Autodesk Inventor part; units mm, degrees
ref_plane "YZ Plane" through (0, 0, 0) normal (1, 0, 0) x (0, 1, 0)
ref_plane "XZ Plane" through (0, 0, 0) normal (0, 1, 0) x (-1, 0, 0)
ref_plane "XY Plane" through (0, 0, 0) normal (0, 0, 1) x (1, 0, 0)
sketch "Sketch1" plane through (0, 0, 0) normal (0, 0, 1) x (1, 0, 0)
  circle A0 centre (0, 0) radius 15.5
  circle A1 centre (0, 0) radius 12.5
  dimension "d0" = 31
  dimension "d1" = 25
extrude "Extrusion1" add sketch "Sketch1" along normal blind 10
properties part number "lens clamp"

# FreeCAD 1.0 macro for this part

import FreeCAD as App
import Part
import Sketcher

doc = App.newDocument("Part")
body = doc.addObject("PartDesign::Body", "Body")

sketch1 = body.newObject("Sketcher::SketchObject", "Sketch")
sketch1.AttachmentSupport = (doc.getObject("XY_Plane"), [""])
sketch1.MapMode = "FlatFace"
sketch1.addGeometry([
    Part.Circle(App.Vector(0, 0, 0), App.Vector(0, 0, 1), 16),
    Part.Circle(App.Vector(0, 0, 0), App.Vector(0, 0, 1), 12),
], False)
sketch1.addConstraint([
    Sketcher.Constraint("Coincident", 0, 3, -1, 1),
    Sketcher.Constraint("Coincident", 1, 3, -1, 1),
    Sketcher.Constraint("Diameter", 0, 31.0),
    Sketcher.Constraint("Diameter", 1, 25.0),
])
pad1 = body.newObject("PartDesign::Pad", "Pad")
pad1.Profile = sketch1
pad1.Length = 10

doc.recompute()
